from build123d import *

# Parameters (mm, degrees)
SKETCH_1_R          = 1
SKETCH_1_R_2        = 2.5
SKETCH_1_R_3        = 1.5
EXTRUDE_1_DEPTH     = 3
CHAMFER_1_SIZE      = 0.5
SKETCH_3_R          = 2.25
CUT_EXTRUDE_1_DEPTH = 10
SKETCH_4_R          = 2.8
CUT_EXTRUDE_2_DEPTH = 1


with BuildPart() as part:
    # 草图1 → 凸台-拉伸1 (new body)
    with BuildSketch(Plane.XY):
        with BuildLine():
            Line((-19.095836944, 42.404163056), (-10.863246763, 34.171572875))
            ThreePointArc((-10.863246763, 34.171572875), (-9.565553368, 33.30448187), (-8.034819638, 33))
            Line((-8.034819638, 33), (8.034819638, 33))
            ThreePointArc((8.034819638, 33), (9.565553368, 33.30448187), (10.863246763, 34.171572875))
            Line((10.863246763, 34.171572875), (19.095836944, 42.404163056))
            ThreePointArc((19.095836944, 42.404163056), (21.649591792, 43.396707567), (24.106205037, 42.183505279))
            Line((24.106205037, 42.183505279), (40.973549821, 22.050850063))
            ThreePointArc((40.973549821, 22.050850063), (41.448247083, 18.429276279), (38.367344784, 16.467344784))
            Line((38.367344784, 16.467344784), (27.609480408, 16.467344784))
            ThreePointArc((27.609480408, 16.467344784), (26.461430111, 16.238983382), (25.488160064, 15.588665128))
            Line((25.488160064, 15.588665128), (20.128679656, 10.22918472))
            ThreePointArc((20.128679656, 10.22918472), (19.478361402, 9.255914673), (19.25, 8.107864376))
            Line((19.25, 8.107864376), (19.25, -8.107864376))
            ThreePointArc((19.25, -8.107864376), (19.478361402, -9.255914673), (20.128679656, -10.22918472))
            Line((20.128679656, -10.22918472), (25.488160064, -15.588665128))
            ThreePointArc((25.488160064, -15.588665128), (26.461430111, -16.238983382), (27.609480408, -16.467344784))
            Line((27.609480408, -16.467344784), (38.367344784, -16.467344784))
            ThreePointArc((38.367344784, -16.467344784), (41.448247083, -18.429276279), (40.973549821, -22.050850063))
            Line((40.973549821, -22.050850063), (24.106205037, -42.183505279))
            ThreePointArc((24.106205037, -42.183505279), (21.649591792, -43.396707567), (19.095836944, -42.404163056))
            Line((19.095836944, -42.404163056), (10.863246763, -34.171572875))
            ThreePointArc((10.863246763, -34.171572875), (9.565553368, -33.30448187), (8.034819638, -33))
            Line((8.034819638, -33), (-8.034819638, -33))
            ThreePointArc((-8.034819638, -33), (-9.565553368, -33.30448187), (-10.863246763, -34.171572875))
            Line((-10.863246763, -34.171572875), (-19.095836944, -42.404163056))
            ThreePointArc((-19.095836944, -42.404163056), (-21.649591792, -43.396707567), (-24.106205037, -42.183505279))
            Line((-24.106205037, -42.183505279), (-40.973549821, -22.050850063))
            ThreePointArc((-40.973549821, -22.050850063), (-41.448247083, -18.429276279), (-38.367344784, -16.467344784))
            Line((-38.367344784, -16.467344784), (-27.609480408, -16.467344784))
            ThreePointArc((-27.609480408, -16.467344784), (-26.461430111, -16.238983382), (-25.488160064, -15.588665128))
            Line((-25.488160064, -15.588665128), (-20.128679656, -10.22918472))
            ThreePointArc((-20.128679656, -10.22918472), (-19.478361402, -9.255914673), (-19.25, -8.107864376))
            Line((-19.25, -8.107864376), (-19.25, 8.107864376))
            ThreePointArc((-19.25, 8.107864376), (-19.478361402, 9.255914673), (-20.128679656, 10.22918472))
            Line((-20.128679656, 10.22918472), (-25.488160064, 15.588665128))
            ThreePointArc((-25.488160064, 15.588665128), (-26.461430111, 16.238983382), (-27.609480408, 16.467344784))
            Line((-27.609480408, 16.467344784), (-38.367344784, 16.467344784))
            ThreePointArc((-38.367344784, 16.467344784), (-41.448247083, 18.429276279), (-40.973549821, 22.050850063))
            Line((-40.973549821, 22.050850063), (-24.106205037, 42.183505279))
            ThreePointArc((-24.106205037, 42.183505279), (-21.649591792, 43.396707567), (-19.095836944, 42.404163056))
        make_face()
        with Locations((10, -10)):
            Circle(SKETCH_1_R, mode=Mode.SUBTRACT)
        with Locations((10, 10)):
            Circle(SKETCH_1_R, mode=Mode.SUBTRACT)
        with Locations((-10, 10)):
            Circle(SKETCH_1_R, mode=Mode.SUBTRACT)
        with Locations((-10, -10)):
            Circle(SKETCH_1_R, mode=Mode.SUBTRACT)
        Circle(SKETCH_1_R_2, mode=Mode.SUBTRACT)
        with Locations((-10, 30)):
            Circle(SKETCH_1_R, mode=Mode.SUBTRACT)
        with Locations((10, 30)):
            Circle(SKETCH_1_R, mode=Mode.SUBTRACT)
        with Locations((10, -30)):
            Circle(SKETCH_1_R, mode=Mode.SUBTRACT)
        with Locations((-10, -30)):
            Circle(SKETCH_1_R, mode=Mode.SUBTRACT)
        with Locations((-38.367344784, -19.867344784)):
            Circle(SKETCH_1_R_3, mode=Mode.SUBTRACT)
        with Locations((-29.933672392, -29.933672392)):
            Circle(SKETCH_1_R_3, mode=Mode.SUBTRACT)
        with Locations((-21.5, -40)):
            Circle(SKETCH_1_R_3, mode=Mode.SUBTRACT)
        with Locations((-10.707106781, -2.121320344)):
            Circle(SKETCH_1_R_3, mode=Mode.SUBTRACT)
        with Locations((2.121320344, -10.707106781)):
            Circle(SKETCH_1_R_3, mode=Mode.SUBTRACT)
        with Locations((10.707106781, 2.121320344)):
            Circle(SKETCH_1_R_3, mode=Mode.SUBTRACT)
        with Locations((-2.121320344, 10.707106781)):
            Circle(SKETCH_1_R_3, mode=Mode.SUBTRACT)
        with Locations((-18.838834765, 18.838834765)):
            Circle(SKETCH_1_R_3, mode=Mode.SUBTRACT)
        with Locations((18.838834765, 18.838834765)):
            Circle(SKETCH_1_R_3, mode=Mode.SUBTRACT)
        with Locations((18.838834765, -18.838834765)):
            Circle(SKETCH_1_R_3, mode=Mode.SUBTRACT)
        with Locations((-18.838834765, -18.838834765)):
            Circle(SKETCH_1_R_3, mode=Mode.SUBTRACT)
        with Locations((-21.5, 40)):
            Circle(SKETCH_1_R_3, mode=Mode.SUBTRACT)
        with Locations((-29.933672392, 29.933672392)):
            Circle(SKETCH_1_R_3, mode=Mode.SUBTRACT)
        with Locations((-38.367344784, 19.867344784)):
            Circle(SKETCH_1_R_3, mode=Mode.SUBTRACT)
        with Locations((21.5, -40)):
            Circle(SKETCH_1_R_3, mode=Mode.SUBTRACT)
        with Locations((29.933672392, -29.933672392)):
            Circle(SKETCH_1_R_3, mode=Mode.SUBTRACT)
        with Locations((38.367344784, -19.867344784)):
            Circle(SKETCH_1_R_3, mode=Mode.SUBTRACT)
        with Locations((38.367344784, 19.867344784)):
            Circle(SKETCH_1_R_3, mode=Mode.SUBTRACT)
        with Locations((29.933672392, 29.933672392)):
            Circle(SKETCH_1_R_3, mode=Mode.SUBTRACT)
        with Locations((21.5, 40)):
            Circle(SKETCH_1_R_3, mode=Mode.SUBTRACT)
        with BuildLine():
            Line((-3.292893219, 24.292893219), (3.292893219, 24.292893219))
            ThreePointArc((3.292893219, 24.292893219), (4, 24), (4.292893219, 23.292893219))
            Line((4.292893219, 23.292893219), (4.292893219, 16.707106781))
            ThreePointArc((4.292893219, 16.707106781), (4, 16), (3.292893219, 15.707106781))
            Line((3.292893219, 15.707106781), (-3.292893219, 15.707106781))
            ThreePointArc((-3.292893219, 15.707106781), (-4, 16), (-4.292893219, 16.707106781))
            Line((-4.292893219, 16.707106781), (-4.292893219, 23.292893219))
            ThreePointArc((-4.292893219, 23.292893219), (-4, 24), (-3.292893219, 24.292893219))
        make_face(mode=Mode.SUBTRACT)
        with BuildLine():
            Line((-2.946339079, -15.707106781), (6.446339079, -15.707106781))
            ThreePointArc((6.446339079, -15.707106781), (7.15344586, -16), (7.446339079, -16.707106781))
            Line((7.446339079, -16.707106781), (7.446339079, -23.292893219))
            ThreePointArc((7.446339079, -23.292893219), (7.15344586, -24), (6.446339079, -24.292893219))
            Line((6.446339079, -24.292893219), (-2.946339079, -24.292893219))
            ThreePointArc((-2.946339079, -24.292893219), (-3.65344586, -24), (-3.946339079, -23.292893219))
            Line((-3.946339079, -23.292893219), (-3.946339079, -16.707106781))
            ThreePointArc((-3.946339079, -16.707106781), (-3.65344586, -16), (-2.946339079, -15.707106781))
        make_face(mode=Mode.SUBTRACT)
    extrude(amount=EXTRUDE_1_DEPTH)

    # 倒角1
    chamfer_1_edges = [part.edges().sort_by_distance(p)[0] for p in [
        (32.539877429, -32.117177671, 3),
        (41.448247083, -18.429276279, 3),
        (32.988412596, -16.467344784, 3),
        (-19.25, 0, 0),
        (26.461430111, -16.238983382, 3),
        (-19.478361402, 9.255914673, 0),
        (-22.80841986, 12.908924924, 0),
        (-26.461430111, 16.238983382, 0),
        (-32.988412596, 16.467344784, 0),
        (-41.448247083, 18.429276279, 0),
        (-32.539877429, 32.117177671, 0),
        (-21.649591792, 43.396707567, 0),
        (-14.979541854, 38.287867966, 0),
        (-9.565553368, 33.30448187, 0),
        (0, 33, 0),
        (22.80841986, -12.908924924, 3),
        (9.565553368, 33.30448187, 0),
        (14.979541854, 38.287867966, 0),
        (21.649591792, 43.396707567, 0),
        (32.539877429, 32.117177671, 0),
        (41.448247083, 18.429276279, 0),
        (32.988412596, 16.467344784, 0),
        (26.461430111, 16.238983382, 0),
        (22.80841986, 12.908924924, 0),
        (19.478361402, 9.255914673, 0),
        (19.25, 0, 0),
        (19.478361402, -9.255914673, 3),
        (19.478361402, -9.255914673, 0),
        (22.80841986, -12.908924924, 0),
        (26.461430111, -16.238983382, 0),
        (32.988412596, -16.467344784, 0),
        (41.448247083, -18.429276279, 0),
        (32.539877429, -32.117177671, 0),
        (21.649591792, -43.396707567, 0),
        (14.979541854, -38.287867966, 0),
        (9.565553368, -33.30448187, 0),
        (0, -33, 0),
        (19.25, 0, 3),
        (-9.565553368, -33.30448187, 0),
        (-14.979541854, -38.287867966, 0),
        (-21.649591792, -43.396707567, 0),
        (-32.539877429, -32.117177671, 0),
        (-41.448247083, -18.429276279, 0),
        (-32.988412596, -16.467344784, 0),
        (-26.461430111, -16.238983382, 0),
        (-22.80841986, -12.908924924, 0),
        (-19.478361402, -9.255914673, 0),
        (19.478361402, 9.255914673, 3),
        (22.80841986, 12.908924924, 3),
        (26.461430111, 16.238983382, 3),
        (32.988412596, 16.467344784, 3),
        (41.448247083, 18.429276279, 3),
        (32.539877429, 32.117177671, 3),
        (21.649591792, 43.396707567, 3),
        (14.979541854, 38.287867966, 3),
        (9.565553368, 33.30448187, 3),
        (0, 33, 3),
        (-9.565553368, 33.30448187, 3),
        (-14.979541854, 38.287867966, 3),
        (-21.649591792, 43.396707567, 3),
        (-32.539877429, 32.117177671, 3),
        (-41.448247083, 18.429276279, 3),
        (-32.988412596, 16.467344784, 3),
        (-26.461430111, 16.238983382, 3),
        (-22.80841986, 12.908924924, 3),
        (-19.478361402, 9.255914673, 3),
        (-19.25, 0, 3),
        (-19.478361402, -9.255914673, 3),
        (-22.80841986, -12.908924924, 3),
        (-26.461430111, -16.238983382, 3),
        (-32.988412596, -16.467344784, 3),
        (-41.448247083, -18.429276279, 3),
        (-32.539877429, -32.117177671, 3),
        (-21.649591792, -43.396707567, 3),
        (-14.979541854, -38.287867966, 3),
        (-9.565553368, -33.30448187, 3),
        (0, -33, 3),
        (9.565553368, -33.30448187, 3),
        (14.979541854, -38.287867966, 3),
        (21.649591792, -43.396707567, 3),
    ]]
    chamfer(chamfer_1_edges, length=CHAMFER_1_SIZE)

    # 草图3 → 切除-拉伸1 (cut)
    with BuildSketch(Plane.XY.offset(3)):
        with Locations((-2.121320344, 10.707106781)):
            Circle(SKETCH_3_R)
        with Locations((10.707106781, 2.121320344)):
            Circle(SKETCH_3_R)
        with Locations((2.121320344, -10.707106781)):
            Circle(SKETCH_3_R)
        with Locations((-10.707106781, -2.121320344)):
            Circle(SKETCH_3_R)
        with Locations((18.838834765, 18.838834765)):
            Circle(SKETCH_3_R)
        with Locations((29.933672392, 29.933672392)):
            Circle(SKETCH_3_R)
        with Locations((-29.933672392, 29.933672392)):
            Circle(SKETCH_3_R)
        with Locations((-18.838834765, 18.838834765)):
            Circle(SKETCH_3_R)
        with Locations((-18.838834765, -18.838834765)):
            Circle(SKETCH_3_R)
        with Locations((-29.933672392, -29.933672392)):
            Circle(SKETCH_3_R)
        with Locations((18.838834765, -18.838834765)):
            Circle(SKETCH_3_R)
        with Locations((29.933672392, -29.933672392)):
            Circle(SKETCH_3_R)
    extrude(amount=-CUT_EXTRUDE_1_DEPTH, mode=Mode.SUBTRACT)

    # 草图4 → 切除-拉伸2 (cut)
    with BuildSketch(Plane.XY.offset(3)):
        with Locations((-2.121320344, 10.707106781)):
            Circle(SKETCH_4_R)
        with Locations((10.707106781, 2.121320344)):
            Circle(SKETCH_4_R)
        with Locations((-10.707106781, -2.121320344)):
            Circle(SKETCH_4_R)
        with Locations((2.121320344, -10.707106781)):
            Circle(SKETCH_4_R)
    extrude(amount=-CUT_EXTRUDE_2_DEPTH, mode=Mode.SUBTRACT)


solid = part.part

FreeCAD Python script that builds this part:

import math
import FreeCAD as App
import Part
import Sketcher
from FreeCAD import Vector
Q = App.Units.Quantity


def edges_at(feature, points):
    """Names of the edges that pass closest to the given points."""
    edges = feature.Shape.Edges
    near = lambda p: min(range(len(edges)), key=lambda i: edges[i].distToShape(Part.Vertex(*p))[0])
    return sorted({f"Edge{near(p) + 1}" for p in points})

doc = App.newDocument("Part")
params = doc.addObject("Spreadsheet::Sheet", "Params")
for row, (alias, value) in enumerate([
    ("sketch1_diameter", "3 mm"),
    ("sketch1_diameter2", "2 mm"),
    ("sketch1_diameter3", "5 mm"),
    ("sketch1_radius", "3 mm"),
    ("sketch1_radius2", "4 mm"),
    ("pad1_length", "3 mm"),
    ("chamfer_size", "0.5 mm"),
    ("sketch2_diameter", "4.5 mm"),
    ("pocket1_length", "10 mm"),
    ("sketch3_diameter", "5.6 mm"),
    ("pocket2_length", "1 mm"),
], start=1):
    params.set(f"A{row}", alias)
    params.set(f"B{row}", "=" + value)
    params.setAlias(f"B{row}", alias)

body = doc.addObject("PartDesign::Body", "Body")

# Sketch on XY plane
sketch1 = body.newObject("Sketcher::SketchObject", "Sketch")
sketch1.AttachmentSupport = (doc.getObject("XY_Plane"), [""])
sketch1.MapMode = "FlatFace"
sketch1.addGeometry(Part.LineSegment(Vector(-10.9, 34.2, 0), Vector(-19.1, 42.4, 0)), False)
sketch1.addGeometry(Part.ArcOfCircle(Part.Circle(Vector(-21.5, 40, 0), Vector(0, 0, 1), 3.4), math.radians(45), math.radians(140)), False)
sketch1.addGeometry(Part.LineSegment(Vector(-24.1, 42.2, 0), Vector(-41, 22.1, 0)), False)
sketch1.addGeometry(Part.ArcOfCircle(Part.Circle(Vector(-38.4, 19.9, 0), Vector(0, 0, 1), 3.4), math.radians(140), math.radians(270)), False)
sketch1.addGeometry(Part.LineSegment(Vector(-38.4, 16.5, 0), Vector(-27.6, 16.5, 0)), False)
sketch1.addGeometry(Part.ArcOfCircle(Part.Circle(Vector(-27.6, 13.5, 0), Vector(0, 0, 1), 3), math.radians(45), math.radians(90)), False)
sketch1.addGeometry(Part.LineSegment(Vector(-25.5, 15.6, 0), Vector(-20.1, 10.2, 0)), False)
sketch1.addGeometry(Part.ArcOfCircle(Part.Circle(Vector(-22.2, 8.1, 0), Vector(0, 0, 1), 3), math.radians(0), math.radians(45)), False)
sketch1.addGeometry(Part.LineSegment(Vector(-19.2, 8.1, 0), Vector(-19.2, -8.1, 0)), False)
sketch1.addGeometry(Part.ArcOfCircle(Part.Circle(Vector(-22.2, -8.1, 0), Vector(0, 0, 1), 3), math.radians(-45), math.radians(0)), False)
sketch1.addGeometry(Part.LineSegment(Vector(-20.1, -10.2, 0), Vector(-25.5, -15.6, 0)), False)
sketch1.addGeometry(Part.ArcOfCircle(Part.Circle(Vector(-27.6, -13.5, 0), Vector(0, 0, 1), 3), math.radians(-90), math.radians(-45)), False)
sketch1.addGeometry(Part.LineSegment(Vector(-27.6, -16.5, 0), Vector(-38.4, -16.5, 0)), False)
sketch1.addGeometry(Part.ArcOfCircle(Part.Circle(Vector(-38.4, -19.9, 0), Vector(0, 0, 1), 3.4), math.radians(90), math.radians(220)), False)
sketch1.addGeometry(Part.LineSegment(Vector(-41, -22.1, 0), Vector(-24.1, -42.2, 0)), False)
sketch1.addGeometry(Part.ArcOfCircle(Part.Circle(Vector(-21.5, -40, 0), Vector(0, 0, 1), 3.4), math.radians(-140), math.radians(-45)), False)
sketch1.addGeometry(Part.LineSegment(Vector(-19.1, -42.4, 0), Vector(-10.9, -34.2, 0)), False)
sketch1.addGeometry(Part.ArcOfCircle(Part.Circle(Vector(-8, -37, 0), Vector(0, 0, 1), 4), math.radians(90), math.radians(135)), False)
sketch1.addGeometry(Part.LineSegment(Vector(-8, -33, 0), Vector(8, -33, 0)), False)
sketch1.addGeometry(Part.ArcOfCircle(Part.Circle(Vector(8, -37, 0), Vector(0, 0, 1), 4), math.radians(45), math.radians(90)), False)
sketch1.addGeometry(Part.LineSegment(Vector(10.9, -34.2, 0), Vector(19.1, -42.4, 0)), False)
sketch1.addGeometry(Part.ArcOfCircle(Part.Circle(Vector(21.5, -40, 0), Vector(0, 0, 1), 3.4), math.radians(-135), math.radians(-40)), False)
sketch1.addGeometry(Part.LineSegment(Vector(24.1, -42.2, 0), Vector(41, -22.1, 0)), False)
sketch1.addGeometry(Part.ArcOfCircle(Part.Circle(Vector(38.4, -19.9, 0), Vector(0, 0, 1), 3.4), math.radians(-40), math.radians(90)), False)
sketch1.addGeometry(Part.LineSegment(Vector(38.4, -16.5, 0), Vector(27.6, -16.5, 0)), False)
sketch1.addGeometry(Part.ArcOfCircle(Part.Circle(Vector(27.6, -13.5, 0), Vector(0, 0, 1), 3), math.radians(-135), math.radians(-90)), False)
sketch1.addGeometry(Part.LineSegment(Vector(25.5, -15.6, 0), Vector(20.1, -10.2, 0)), False)
sketch1.addGeometry(Part.ArcOfCircle(Part.Circle(Vector(22.2, -8.1, 0), Vector(0, 0, 1), 3), math.radians(180), math.radians(225)), False)
sketch1.addGeometry(Part.LineSegment(Vector(19.2, -8.1, 0), Vector(19.2, 8.1, 0)), False)
sketch1.addGeometry(Part.ArcOfCircle(Part.Circle(Vector(22.2, 8.1, 0), Vector(0, 0, 1), 3), math.radians(135), math.radians(180)), False)
sketch1.addGeometry(Part.LineSegment(Vector(20.1, 10.2, 0), Vector(25.5, 15.6, 0)), False)
sketch1.addGeometry(Part.ArcOfCircle(Part.Circle(Vector(27.6, 13.5, 0), Vector(0, 0, 1), 3), math.radians(90), math.radians(135)), False)
sketch1.addGeometry(Part.LineSegment(Vector(27.6, 16.5, 0), Vector(38.4, 16.5, 0)), False)
sketch1.addGeometry(Part.ArcOfCircle(Part.Circle(Vector(38.4, 19.9, 0), Vector(0, 0, 1), 3.4), math.radians(-90), math.radians(40)), False)
sketch1.addGeometry(Part.LineSegment(Vector(41, 22.1, 0), Vector(24.1, 42.2, 0)), False)
sketch1.addGeometry(Part.ArcOfCircle(Part.Circle(Vector(21.5, 40, 0), Vector(0, 0, 1), 3.4), math.radians(40), math.radians(135)), False)
sketch1.addGeometry(Part.LineSegment(Vector(19.1, 42.4, 0), Vector(10.9, 34.2, 0)), False)
sketch1.addGeometry(Part.ArcOfCircle(Part.Circle(Vector(8, 37, 0), Vector(0, 0, 1), 4), math.radians(-90), math.radians(-45)), False)
sketch1.addGeometry(Part.LineSegment(Vector(8, 33, 0), Vector(-8, 33, 0)), False)
sketch1.addGeometry(Part.ArcOfCircle(Part.Circle(Vector(-8, 37, 0), Vector(0, 0, 1), 4), math.radians(-135), math.radians(-90)), False)
sketch1.addGeometry(Part.Circle(Vector(21.5, -40, 0), Vector(0, 0, 1), 1.5), False)
sketch1.addGeometry(Part.Circle(Vector(29.9, -29.9, 0), Vector(0, 0, 1), 1.5), False)
sketch1.addGeometry(Part.Circle(Vector(10, -30, 0), Vector(0, 0, 1), 1), False)
sketch1.addGeometry(Part.Circle(Vector(38.4, -19.9, 0), Vector(0, 0, 1), 1.5), False)
sketch1.addGeometry(Part.Circle(Vector(18.8, -18.8, 0), Vector(0, 0, 1), 1.5), False)
sketch1.addGeometry(Part.LineSegment(Vector(-2.9, -15.7, 0), Vector(6.4, -15.7, 0)), False)
sketch1.addGeometry(Part.ArcOfCircle(Part.Circle(Vector(6.4, -16.7, 0), Vector(0, 0, 1), 1), math.radians(0), math.radians(90)), False)
sketch1.addGeometry(Part.LineSegment(Vector(7.4, -16.7, 0), Vector(7.4, -23.3, 0)), False)
sketch1.addGeometry(Part.ArcOfCircle(Part.Circle(Vector(6.4, -23.3, 0), Vector(0, 0, 1), 1), math.radians(-90), math.radians(0)), False)
sketch1.addGeometry(Part.LineSegment(Vector(6.4, -24.3, 0), Vector(-2.9, -24.3, 0)), False)
sketch1.addGeometry(Part.ArcOfCircle(Part.Circle(Vector(-2.9, -23.3, 0), Vector(0, 0, 1), 1), math.radians(-180), math.radians(-90)), False)
sketch1.addGeometry(Part.LineSegment(Vector(-3.9, -23.3, 0), Vector(-3.9, -16.7, 0)), False)
sketch1.addGeometry(Part.ArcOfCircle(Part.Circle(Vector(-2.9, -16.7, 0), Vector(0, 0, 1), 1), math.radians(90), math.radians(180)), False)
sketch1.addGeometry(Part.Circle(Vector(2.1, -10.7, 0), Vector(0, 0, 1), 1.5), False)
sketch1.addGeometry(Part.Circle(Vector(10, -10, 0), Vector(0, 0, 1), 1), False)
sketch1.addGeometry(Part.Circle(Vector(-10, -30, 0), Vector(0, 0, 1), 1), False)
sketch1.addGeometry(Part.Circle(Vector(-21.5, -40, 0), Vector(0, 0, 1), 1.5), False)
sketch1.addGeometry(Part.Circle(Vector(-29.9, -29.9, 0), Vector(0, 0, 1), 1.5), False)
sketch1.addGeometry(Part.Circle(Vector(-18.8, -18.8, 0), Vector(0, 0, 1), 1.5), False)
sketch1.addGeometry(Part.Circle(Vector(-10, -10, 0), Vector(0, 0, 1), 1), False)
sketch1.addGeometry(Part.Circle(Vector(-10.7, -2.1, 0), Vector(0, 0, 1), 1.5), False)
sketch1.addGeometry(Part.Circle(Vector(-38.4, -19.9, 0), Vector(0, 0, 1), 1.5), False)
sketch1.addGeometry(Part.Circle(Vector(38.4, 19.9, 0), Vector(0, 0, 1), 1.5), False)
sketch1.addGeometry(Part.Circle(Vector(10.7, 2.1, 0), Vector(0, 0, 1), 1.5), False)
sketch1.addGeometry(Part.Circle(Vector(10, 10, 0), Vector(0, 0, 1), 1), False)
sketch1.addGeometry(Part.Circle(Vector(18.8, 18.8, 0), Vector(0, 0, 1), 1.5), False)
sketch1.addGeometry(Part.Circle(Vector(29.9, 29.9, 0), Vector(0, 0, 1), 1.5), False)
sketch1.addGeometry(Part.Circle(Vector(21.5, 40, 0), Vector(0, 0, 1), 1.5), False)
sketch1.addGeometry(Part.Circle(Vector(10, 30, 0), Vector(0, 0, 1), 1), False)
sketch1.addGeometry(Part.Circle(Vector(0, 0, 0), Vector(0, 0, 1), 2.5), False)
sketch1.addGeometry(Part.Circle(Vector(-10, 10, 0), Vector(0, 0, 1), 1), False)
sketch1.addGeometry(Part.Circle(Vector(-2.1, 10.7, 0), Vector(0, 0, 1), 1.5), False)
sketch1.addGeometry(Part.LineSegment(Vector(-3.3, 24.3, 0), Vector(3.3, 24.3, 0)), False)
sketch1.addGeometry(Part.ArcOfCircle(Part.Circle(Vector(3.3, 23.3, 0), Vector(0, 0, 1), 1), math.radians(0), math.radians(90)), False)
sketch1.addGeometry(Part.LineSegment(Vector(4.3, 23.3, 0), Vector(4.3, 16.7, 0)), False)
sketch1.addGeometry(Part.ArcOfCircle(Part.Circle(Vector(3.3, 16.7, 0), Vector(0, 0, 1), 1), math.radians(-90), math.radians(0)), False)
sketch1.addGeometry(Part.LineSegment(Vector(3.3, 15.7, 0), Vector(-3.3, 15.7, 0)), False)
sketch1.addGeometry(Part.ArcOfCircle(Part.Circle(Vector(-3.3, 16.7, 0), Vector(0, 0, 1), 1), math.radians(-180), math.radians(-90)), False)
sketch1.addGeometry(Part.LineSegment(Vector(-4.3, 16.7, 0), Vector(-4.3, 23.3, 0)), False)
sketch1.addGeometry(Part.ArcOfCircle(Part.Circle(Vector(-3.3, 23.3, 0), Vector(0, 0, 1), 1), math.radians(90), math.radians(180)), False)
sketch1.addGeometry(Part.Circle(Vector(-18.8, 18.8, 0), Vector(0, 0, 1), 1.5), False)
sketch1.addGeometry(Part.Circle(Vector(-38.4, 19.9, 0), Vector(0, 0, 1), 1.5), False)
sketch1.addGeometry(Part.Circle(Vector(-10, 30, 0), Vector(0, 0, 1), 1), False)
sketch1.addGeometry(Part.Circle(Vector(-29.9, 29.9, 0), Vector(0, 0, 1), 1.5), False)
sketch1.addGeometry(Part.Circle(Vector(-21.5, 40, 0), Vector(0, 0, 1), 1.5), False)
sketch1.addConstraint(Sketcher.Constraint("Tangent", 0, 2, 1, 1))
sketch1.addConstraint(Sketcher.Constraint("Tangent", 1, 2, 2, 1))
sketch1.addConstraint(Sketcher.Constraint("Tangent", 2, 2, 3, 1))
sketch1.addConstraint(Sketcher.Constraint("Tangent", 3, 2, 4, 1))
sketch1.addConstraint(Sketcher.Constraint("Tangent", 4, 2, 5, 2))
sketch1.addConstraint(Sketcher.Constraint("Tangent", 5, 1, 6, 1))
sketch1.addConstraint(Sketcher.Constraint("Tangent", 6, 2, 7, 2))
sketch1.addConstraint(Sketcher.Constraint("Tangent", 7, 1, 8, 1))
sketch1.addConstraint(Sketcher.Constraint("Tangent", 8, 2, 9, 2))
sketch1.addConstraint(Sketcher.Constraint("Tangent", 9, 1, 10, 1))
sketch1.addConstraint(Sketcher.Constraint("Tangent", 10, 2, 11, 2))
sketch1.addConstraint(Sketcher.Constraint("Tangent", 11, 1, 12, 1))
sketch1.addConstraint(Sketcher.Constraint("Tangent", 12, 2, 13, 1))
sketch1.addConstraint(Sketcher.Constraint("Tangent", 13, 2, 14, 1))
sketch1.addConstraint(Sketcher.Constraint("Tangent", 14, 2, 15, 1))
sketch1.addConstraint(Sketcher.Constraint("Tangent", 15, 2, 16, 1))
sketch1.addConstraint(Sketcher.Constraint("Tangent", 16, 2, 17, 2))
sketch1.addConstraint(Sketcher.Constraint("Tangent", 17, 1, 18, 1))
sketch1.addConstraint(Sketcher.Constraint("Tangent", 18, 2, 19, 2))
sketch1.addConstraint(Sketcher.Constraint("Tangent", 19, 1, 20, 1))
sketch1.addConstraint(Sketcher.Constraint("Tangent", 20, 2, 21, 1))
sketch1.addConstraint(Sketcher.Constraint("Tangent", 21, 2, 22, 1))
sketch1.addConstraint(Sketcher.Constraint("Tangent", 22, 2, 23, 1))
sketch1.addConstraint(Sketcher.Constraint("Tangent", 23, 2, 24, 1))
sketch1.addConstraint(Sketcher.Constraint("Tangent", 24, 2, 25, 2))
sketch1.addConstraint(Sketcher.Constraint("Tangent", 25, 1, 26, 1))
sketch1.addConstraint(Sketcher.Constraint("Tangent", 26, 2, 27, 2))
sketch1.addConstraint(Sketcher.Constraint("Tangent", 27, 1, 28, 1))
sketch1.addConstraint(Sketcher.Constraint("Tangent", 28, 2, 29, 2))
sketch1.addConstraint(Sketcher.Constraint("Tangent", 29, 1, 30, 1))
sketch1.addConstraint(Sketcher.Constraint("Tangent", 30, 2, 31, 2))
sketch1.addConstraint(Sketcher.Constraint("Tangent", 31, 1, 32, 1))
sketch1.addConstraint(Sketcher.Constraint("Tangent", 32, 2, 33, 1))
sketch1.addConstraint(Sketcher.Constraint("Tangent", 33, 2, 34, 1))
sketch1.addConstraint(Sketcher.Constraint("Tangent", 34, 2, 35, 1))
sketch1.addConstraint(Sketcher.Constraint("Tangent", 35, 2, 36, 1))
sketch1.addConstraint(Sketcher.Constraint("Tangent", 36, 2, 37, 2))
sketch1.addConstraint(Sketcher.Constraint("Tangent", 37, 1, 38, 1))
sketch1.addConstraint(Sketcher.Constraint("Tangent", 38, 2, 39, 2))
sketch1.addConstraint(Sketcher.Constraint("Tangent", 39, 1, 0, 1))
sketch1.addConstraint(Sketcher.Constraint("Tangent", 45, 2, 46, 2))
sketch1.addConstraint(Sketcher.Constraint("Tangent", 46, 1, 47, 1))
sketch1.addConstraint(Sketcher.Constraint("Tangent", 47, 2, 48, 2))
sketch1.addConstraint(Sketcher.Constraint("Tangent", 48, 1, 49, 1))
sketch1.addConstraint(Sketcher.Constraint("Tangent", 49, 2, 50, 2))
sketch1.addConstraint(Sketcher.Constraint("Tangent", 50, 1, 51, 1))
sketch1.addConstraint(Sketcher.Constraint("Tangent", 51, 2, 52, 2))
sketch1.addConstraint(Sketcher.Constraint("Tangent", 52, 1, 45, 1))
sketch1.addConstraint(Sketcher.Constraint("Tangent", 72, 2, 73, 2))
sketch1.addConstraint(Sketcher.Constraint("Tangent", 73, 1, 74, 1))
sketch1.addConstraint(Sketcher.Constraint("Tangent", 74, 2, 75, 2))
sketch1.addConstraint(Sketcher.Constraint("Tangent", 75, 1, 76, 1))
sketch1.addConstraint(Sketcher.Constraint("Tangent", 76, 2, 77, 2))
sketch1.addConstraint(Sketcher.Constraint("Tangent", 77, 1, 78, 1))
sketch1.addConstraint(Sketcher.Constraint("Tangent", 78, 2, 79, 2))
sketch1.addConstraint(Sketcher.Constraint("Tangent", 79, 1, 72, 1))
sketch1.addConstraint(Sketcher.Constraint("Horizontal", 4))
sketch1.addConstraint(Sketcher.Constraint("Vertical", 8))
sketch1.addConstraint(Sketcher.Constraint("Horizontal", 12))
sketch1.addConstraint(Sketcher.Constraint("Horizontal", 18))
sketch1.addConstraint(Sketcher.Constraint("Horizontal", 24))
sketch1.addConstraint(Sketcher.Constraint("Vertical", 28))
sketch1.addConstraint(Sketcher.Constraint("Horizontal", 32))
sketch1.addConstraint(Sketcher.Constraint("Horizontal", 38))
sketch1.addConstraint(Sketcher.Constraint("Horizontal", 45))
sketch1.addConstraint(Sketcher.Constraint("Vertical", 47))
sketch1.addConstraint(Sketcher.Constraint("Horizontal", 49))
sketch1.addConstraint(Sketcher.Constraint("Vertical", 51))
sketch1.addConstraint(Sketcher.Constraint("Horizontal", 72))
sketch1.addConstraint(Sketcher.Constraint("Vertical", 74))
sketch1.addConstraint(Sketcher.Constraint("Horizontal", 76))
sketch1.addConstraint(Sketcher.Constraint("Vertical", 78))
sketch1.addConstraint(Sketcher.Constraint("Coincident", 69, 3, -1, 1))
sketch1.addConstraint(Sketcher.Constraint("Coincident", 40, 3, 21, 3))
sketch1.addConstraint(Sketcher.Constraint("Coincident", 43, 3, 23, 3))
sketch1.addConstraint(Sketcher.Constraint("Coincident", 56, 3, 15, 3))
sketch1.addConstraint(Sketcher.Constraint("Coincident", 61, 3, 13, 3))
sketch1.addConstraint(Sketcher.Constraint("Coincident", 62, 3, 33, 3))
sketch1.addConstraint(Sketcher.Constraint("Coincident", 67, 3, 35, 3))
sketch1.addConstraint(Sketcher.Constraint("Coincident", 81, 3, 3, 3))
sketch1.addConstraint(Sketcher.Constraint("Coincident", 84, 3, 1, 3))
sketch1.addConstraint(Sketcher.Constraint("Equal", 1, 3))
sketch1.addConstraint(Sketcher.Constraint("Equal", 5, 7))
sketch1.addConstraint(Sketcher.Constraint("Equal", 7, 9))
sketch1.addConstraint(Sketcher.Constraint("Equal", 9, 11))
sketch1.addConstraint(Sketcher.Constraint("Equal", 3, 13))
sketch1.addConstraint(Sketcher.Constraint("Equal", 13, 15))
sketch1.addConstraint(Sketcher.Constraint("Equal", 17, 19))
sketch1.addConstraint(Sketcher.Constraint("Equal", 15, 21))
sketch1.addConstraint(Sketcher.Constraint("Equal", 21, 23))
sketch1.addConstraint(Sketcher.Constraint("Equal", 11, 25))
sketch1.addConstraint(Sketcher.Constraint("Equal", 25, 27))
sketch1.addConstraint(Sketcher.Constraint("Equal", 27, 29))
sketch1.addConstraint(Sketcher.Constraint("Equal", 29, 31))
sketch1.addConstraint(Sketcher.Constraint("Equal", 23, 33))
sketch1.addConstraint(Sketcher.Constraint("Equal", 33, 35))
sketch1.addConstraint(Sketcher.Constraint("Equal", 19, 37))
sketch1.addConstraint(Sketcher.Constraint("Equal", 37, 39))
sketch1.addConstraint(Sketcher.Constraint("Equal", 40, 41))
sketch1.addConstraint(Sketcher.Constraint("Equal", 41, 43))
sketch1.addConstraint(Sketcher.Constraint("Equal", 43, 44))
sketch1.addConstraint(Sketcher.Constraint("Equal", 42, 46))
sketch1.addConstraint(Sketcher.Constraint("Equal", 46, 48))
sketch1.addConstraint(Sketcher.Constraint("Equal", 48, 50))
sketch1.addConstraint(Sketcher.Constraint("Equal", 50, 52))
sketch1.addConstraint(Sketcher.Constraint("Equal", 44, 53))
sketch1.addConstraint(Sketcher.Constraint("Equal", 52, 54))
sketch1.addConstraint(Sketcher.Constraint("Equal", 54, 55))
sketch1.addConstraint(Sketcher.Constraint("Equal", 53, 56))
sketch1.addConstraint(Sketcher.Constraint("Equal", 56, 57))
sketch1.addConstraint(Sketcher.Constraint("Equal", 57, 58))
sketch1.addConstraint(Sketcher.Constraint("Equal", 55, 59))
sketch1.addConstraint(Sketcher.Constraint("Equal", 58, 60))
sketch1.addConstraint(Sketcher.Constraint("Equal", 60, 61))
sketch1.addConstraint(Sketcher.Constraint("Equal", 61, 62))
sketch1.addConstraint(Sketcher.Constraint("Equal", 62, 63))
sketch1.addConstraint(Sketcher.Constraint("Equal", 59, 64))
sketch1.addConstraint(Sketcher.Constraint("Equal", 63, 65))
sketch1.addConstraint(Sketcher.Constraint("Equal", 65, 66))
sketch1.addConstraint(Sketcher.Constraint("Equal", 66, 67))
sketch1.addConstraint(Sketcher.Constraint("Equal", 64, 68))
sketch1.addConstraint(Sketcher.Constraint("Equal", 68, 70))
sketch1.addConstraint(Sketcher.Constraint("Equal", 67, 71))
sketch1.addConstraint(Sketcher.Constraint("Equal", 70, 73))
sketch1.addConstraint(Sketcher.Constraint("Equal", 73, 75))
sketch1.addConstraint(Sketcher.Constraint("Equal", 75, 77))
sketch1.addConstraint(Sketcher.Constraint("Equal", 77, 79))
sketch1.addConstraint(Sketcher.Constraint("Equal", 71, 80))
sketch1.addConstraint(Sketcher.Constraint("Equal", 80, 81))
sketch1.addConstraint(Sketcher.Constraint("Equal", 79, 82))
sketch1.addConstraint(Sketcher.Constraint("Equal", 81, 83))
sketch1.addConstraint(Sketcher.Constraint("Equal", 83, 84))
sketch1.addConstraint(Sketcher.Constraint("Symmetric", 1, 3, 21, 3, -1, 1))
sketch1.addConstraint(Sketcher.Constraint("Symmetric", 3, 3, 23, 3, -1, 1))
sketch1.addConstraint(Sketcher.Constraint("Symmetric", 7, 3, 27, 3, -1, 1))
sketch1.addConstraint(Sketcher.Constraint("Symmetric", 11, 3, 31, 3, -1, 1))
sketch1.addConstraint(Sketcher.Constraint("Symmetric", 15, 3, 35, 3, -1, 1))
sketch1.addConstraint(Sketcher.Constraint("Symmetric", 17, 3, 37, 3, -1, 1))
sketch1.addConstraint(Sketcher.Constraint("Symmetric", 60, 3, 63, 3, -1, 1))
sketch1.addConstraint(Sketcher.Constraint("Symmetric", 59, 3, 64, 3, -1, 1))
sketch1.addConstraint(Sketcher.Constraint("Symmetric", 58, 3, 65, 3, -1, 1))
sketch1.addConstraint(Sketcher.Constraint("Symmetric", 57, 3, 66, 3, -1, 1))
sketch1.addConstraint(Sketcher.Constraint("Symmetric", 55, 3, 68, 3, -1, 1))
sketch1.addConstraint(Sketcher.Constraint("Symmetric", 54, 3, 70, 3, -1, 1))
sketch1.addConstraint(Sketcher.Constraint("Symmetric", 53, 3, 71, 3, -1, 1))
sketch1.addConstraint(Sketcher.Constraint("Symmetric", 44, 3, 80, 3, -1, 1))
sketch1.addConstraint(Sketcher.Constraint("Symmetric", 42, 3, 82, 3, -1, 1))
sketch1.addConstraint(Sketcher.Constraint("Symmetric", 41, 3, 83, 3, -1, 1))
sketch1.addConstraint(Sketcher.Constraint("Symmetric", 15, 3, 21, 3, -2))
sketch1.addConstraint(Sketcher.Constraint("Symmetric", 13, 3, 23, 3, -2))
sketch1.addConstraint(Sketcher.Constraint("Symmetric", 42, 3, 55, 3, -2))
sketch1.addConstraint(Sketcher.Constraint("Symmetric", 41, 3, 57, 3, -2))
sketch1.addConstraint(Sketcher.Constraint("Symmetric", 44, 3, 58, 3, -2))
sketch1.addConstraint(Sketcher.Constraint("Symmetric", 54, 3, 59, 3, -2))
sketch1.addConstraint(Sketcher.Constraint("Symmetric", 10, 2, 25, 1, -2))
sketch1.addConstraint(Sketcher.Constraint("Symmetric", 6, 2, 29, 1, -2))
sketch1.addConstraint(Sketcher.Constraint("Parallel", 0, 6))
sketch1.addConstraint(Sketcher.Constraint("Perpendicular", 6, 10))
sketch1.addConstraint(Sketcher.Constraint("Parallel", 10, 16))
sketch1.addConstraint(Sketcher.Constraint("Perpendicular", 16, 20))
sketch1.addConstraint(Sketcher.Constraint("Parallel", 14, 34))
sketch1.addConstraint(Sketcher.Constraint("Vertical", 42, 3, 54, 3))
sketch1.addConstraint(Sketcher.Constraint("Equal", 76, 47))
sketch1.addConstraint(Sketcher.Constraint("Equal", 51, 74))
sketch1.addConstraint(Sketcher.Constraint("Diameter", 40, Q("3 mm")))
sketch1.addConstraint(Sketcher.Constraint("Diameter", 42, Q("2 mm")))
sketch1.addConstraint(Sketcher.Constraint("Diameter", 69, Q("5 mm")))
sketch1.addConstraint(Sketcher.Constraint("Radius", 5, Q("3 mm")))
sketch1.addConstraint(Sketcher.Constraint("Radius", 17, Q("4 mm")))
sketch1.addConstraint(Sketcher.Constraint("Radius", 1, Q("3.4 mm")))
sketch1.addConstraint(Sketcher.Constraint("DistanceY", -1, 1, 1, 3, Q("40 mm")))
sketch1.addConstraint(Sketcher.Constraint("DistanceY", 17, 3, -1, 1, Q("37 mm")))
sketch1.addConstraint(Sketcher.Constraint("DistanceX", -1, 1, 42, 3, Q("10 mm")))
sketch1.addConstraint(Sketcher.Constraint("DistanceY", 42, 3, -1, 1, Q("30 mm")))
sketch1.addConstraint(Sketcher.Constraint("DistanceY", 54, 3, -1, 1, Q("10 mm")))
sketch1.addConstraint(Sketcher.Constraint("DistanceX", 1, 3, -1, 1, Q("21.5 mm")))
sketch1.addConstraint(Sketcher.Constraint("DistanceX", 7, 3, -1, 1, Q("22.25 mm")))
sketch1.addConstraint(Sketcher.Constraint("DistanceX", 45, 1, 45, 2, Q("9.392678 mm")))
sketch1.addConstraint(Sketcher.Constraint("DistanceY", 8, 2, 8, 1, Q("16.215729 mm")))
sketch1.addConstraint(Sketcher.Constraint("Distance", 6, Q("7.57945 mm")))
sketch1.addConstraint(Sketcher.Constraint("DistanceX", 4, 1, 4, 2, Q("10.757864 mm")))
sketch1.addConstraint(Sketcher.Constraint("DistanceX", 72, 1, 72, 2, Q("6.585786 mm")))
sketch1.addConstraint(Sketcher.Constraint("DistanceX", -1, 1, 46, 3, Q("6.446339 mm")))
sketch1.addConstraint(Sketcher.Constraint("DistanceX", -1, 1, 53, 3, Q("2.12132 mm")))
sketch1.addConstraint(Sketcher.Constraint("DistanceY", 60, 3, -1, 1, Q("2.12132 mm")))
sketch1.addConstraint(Sketcher.Constraint("DistanceX", -1, 1, 41, 3, Q("29.933672 mm")))
sketch1.addConstraint(Sketcher.Constraint("DistanceY", 41, 3, -1, 1, Q("29.933672 mm")))
sketch1.addConstraint(Sketcher.Constraint("DistanceX", -1, 1, 44, 3, Q("18.838835 mm")))
sketch1.addConstraint(Sketcher.Constraint("DistanceY", 44, 3, -1, 1, Q("18.838835 mm")))
sketch1.addConstraint(Sketcher.Constraint("DistanceY", 46, 3, -1, 1, Q("16.707107 mm")))
sketch1.addConstraint(Sketcher.Constraint("DistanceY", 53, 3, -1, 1, Q("10.707107 mm")))
sketch1.addConstraint(Sketcher.Constraint("DistanceX", 60, 3, -1, 1, Q("10.707107 mm")))
sketch1.addConstraint(Sketcher.Constraint("DistanceX", -1, 1, 73, 3, Q("3.292893 mm")))
sketch1.addConstraint(Sketcher.Constraint("DistanceY", -1, 1, 73, 3, Q("23.292893 mm")))
sketch1.setExpression("Constraints[164]", "Params.sketch1_diameter")
sketch1.setExpression("Constraints[165]", "Params.sketch1_diameter2")
sketch1.setExpression("Constraints[166]", "Params.sketch1_diameter3")
sketch1.setExpression("Constraints[167]", "Params.sketch1_radius")
sketch1.setExpression("Constraints[168]", "Params.sketch1_radius2")
pad1 = body.newObject("PartDesign::Pad", "Pad")
pad1.Profile = sketch1
pad1.setExpression("Length", "Params.pad1_length")
doc.recompute()

chamfer = body.newObject("PartDesign::Chamfer", "Chamfer")
chamfer.Base = (pad1, edges_at(pad1, [
    (32.54, -32.117, 3),
    (41.448, -18.429, 3),
    (32.988, -16.467, 3),
    (-19.25, 0, 0),
    (26.461, -16.239, 3),
    (-19.478, 9.256, 0),
    (-22.808, 12.909, 0),
    (-26.461, 16.239, 0),
    (-32.988, 16.467, 0),
    (-41.448, 18.429, 0),
    (-32.54, 32.117, 0),
    (-21.65, 43.397, 0),
    (-14.98, 38.288, 0),
    (-9.566, 33.304, 0),
    (0, 33, 0),
    (22.808, -12.909, 3),
    (9.566, 33.304, 0),
    (14.98, 38.288, 0),
    (21.65, 43.397, 0),
    (32.54, 32.117, 0),
    (41.448, 18.429, 0),
    (32.988, 16.467, 0),
    (26.461, 16.239, 0),
    (22.808, 12.909, 0),
    (19.478, 9.256, 0),
    (19.25, 0, 0),
    (19.478, -9.256, 3),
    (19.478, -9.256, 0),
    (22.808, -12.909, 0),
    (26.461, -16.239, 0),
    (32.988, -16.467, 0),
    (41.448, -18.429, 0),
    (32.54, -32.117, 0),
    (21.65, -43.397, 0),
    (14.98, -38.288, 0),
    (9.566, -33.304, 0),
    (0, -33, 0),
    (19.25, 0, 3),
    (-9.566, -33.304, 0),
    (-14.98, -38.288, 0),
    (-21.65, -43.397, 0),
    (-32.54, -32.117, 0),
    (-41.448, -18.429, 0),
    (-32.988, -16.467, 0),
    (-26.461, -16.239, 0),
    (-22.808, -12.909, 0),
    (-19.478, -9.256, 0),
    (19.478, 9.256, 3),
    (22.808, 12.909, 3),
    (26.461, 16.239, 3),
    (32.988, 16.467, 3),
    (41.448, 18.429, 3),
    (32.54, 32.117, 3),
    (21.65, 43.397, 3),
    (14.98, 38.288, 3),
    (9.566, 33.304, 3),
    (0, 33, 3),
    (-9.566, 33.304, 3),
    (-14.98, 38.288, 3),
    (-21.65, 43.397, 3),
    (-32.54, 32.117, 3),
    (-41.448, 18.429, 3),
    (-32.988, 16.467, 3),
    (-26.461, 16.239, 3),
    (-22.808, 12.909, 3),
    (-19.478, 9.256, 3),
    (-19.25, 0, 3),
    (-19.478, -9.256, 3),
    (-22.808, -12.909, 3),
    (-26.461, -16.239, 3),
    (-32.988, -16.467, 3),
    (-41.448, -18.429, 3),
    (-32.54, -32.117, 3),
    (-21.65, -43.397, 3),
    (-14.98, -38.288, 3),
    (-9.566, -33.304, 3),
    (0, -33, 3),
    (9.566, -33.304, 3),
    (14.98, -38.288, 3),
    (21.65, -43.397, 3),
]))
chamfer.setExpression("Size", "Params.chamfer_size")

# Sketch on XY plane
sketch2 = body.newObject("Sketcher::SketchObject", "Sketch001")
sketch2.AttachmentSupport = (doc.getObject("XY_Plane"), [""])
sketch2.MapMode = "FlatFace"
sketch2.AttachmentOffset = App.Placement(Vector(0, 0, 3), App.Rotation())
sketch2.addGeometry(Part.Circle(Vector(-2.1, 10.7, 0), Vector(0, 0, 1), 2.2), False)
sketch2.addGeometry(Part.Circle(Vector(10.7, 2.1, 0), Vector(0, 0, 1), 2.2), False)
sketch2.addGeometry(Part.Circle(Vector(2.1, -10.7, 0), Vector(0, 0, 1), 2.2), False)
sketch2.addGeometry(Part.Circle(Vector(-10.7, -2.1, 0), Vector(0, 0, 1), 2.2), False)
sketch2.addGeometry(Part.Circle(Vector(18.8, 18.8, 0), Vector(0, 0, 1), 2.2), False)
sketch2.addGeometry(Part.Circle(Vector(29.9, 29.9, 0), Vector(0, 0, 1), 2.2), False)
sketch2.addGeometry(Part.Circle(Vector(-29.9, 29.9, 0), Vector(0, 0, 1), 2.2), False)
sketch2.addGeometry(Part.Circle(Vector(-18.8, 18.8, 0), Vector(0, 0, 1), 2.2), False)
sketch2.addGeometry(Part.Circle(Vector(-18.8, -18.8, 0), Vector(0, 0, 1), 2.2), False)
sketch2.addGeometry(Part.Circle(Vector(-29.9, -29.9, 0), Vector(0, 0, 1), 2.2), False)
sketch2.addGeometry(Part.Circle(Vector(18.8, -18.8, 0), Vector(0, 0, 1), 2.2), False)
sketch2.addGeometry(Part.Circle(Vector(29.9, -29.9, 0), Vector(0, 0, 1), 2.2), False)
sketch2.addConstraint(Sketcher.Constraint("Equal", 0, 1))
sketch2.addConstraint(Sketcher.Constraint("Equal", 1, 2))
sketch2.addConstraint(Sketcher.Constraint("Equal", 2, 3))
sketch2.addConstraint(Sketcher.Constraint("Equal", 3, 4))
sketch2.addConstraint(Sketcher.Constraint("Equal", 4, 5))
sketch2.addConstraint(Sketcher.Constraint("Equal", 5, 6))
sketch2.addConstraint(Sketcher.Constraint("Equal", 6, 7))
sketch2.addConstraint(Sketcher.Constraint("Equal", 7, 8))
sketch2.addConstraint(Sketcher.Constraint("Equal", 8, 9))
sketch2.addConstraint(Sketcher.Constraint("Equal", 9, 10))
sketch2.addConstraint(Sketcher.Constraint("Equal", 10, 11))
sketch2.addConstraint(Sketcher.Constraint("Symmetric", 0, 3, 2, 3, -1, 1))
sketch2.addConstraint(Sketcher.Constraint("Symmetric", 1, 3, 3, 3, -1, 1))
sketch2.addConstraint(Sketcher.Constraint("Symmetric", 4, 3, 8, 3, -1, 1))
sketch2.addConstraint(Sketcher.Constraint("Symmetric", 5, 3, 9, 3, -1, 1))
sketch2.addConstraint(Sketcher.Constraint("Symmetric", 7, 3, 10, 3, -1, 1))
sketch2.addConstraint(Sketcher.Constraint("Symmetric", 6, 3, 11, 3, -1, 1))
sketch2.addConstraint(Sketcher.Constraint("Symmetric", 5, 3, 6, 3, -2))
sketch2.addConstraint(Sketcher.Constraint("Symmetric", 4, 3, 7, 3, -2))
sketch2.addConstraint(Sketcher.Constraint("Diameter", 0, Q("4.5 mm")))
sketch2.addConstraint(Sketcher.Constraint("DistanceX", 0, 3, -1, 1, Q("2.12132 mm")))
sketch2.addConstraint(Sketcher.Constraint("DistanceY", -1, 1, 1, 3, Q("2.12132 mm")))
sketch2.addConstraint(Sketcher.Constraint("DistanceY", 2, 3, 4, 3, Q("29.545942 mm")))
sketch2.addConstraint(Sketcher.Constraint("DistanceX", 3, 3, 4, 3, Q("29.545942 mm")))
sketch2.addConstraint(Sketcher.Constraint("DistanceY", 2, 3, 5, 3, Q("40.640779 mm")))
sketch2.addConstraint(Sketcher.Constraint("DistanceX", 3, 3, 5, 3, Q("40.640779 mm")))
sketch2.addConstraint(Sketcher.Constraint("DistanceY", 8, 3, 7, 3, Q("37.67767 mm")))
sketch2.addConstraint(Sketcher.Constraint("DistanceX", -1, 1, 1, 3, Q("10.707107 mm")))
sketch2.setExpression("Constraints[19]", "Params.sketch2_diameter")
pocket1 = body.newObject("PartDesign::Pocket", "Pocket")
pocket1.Profile = sketch2
pocket1.setExpression("Length", "Params.pocket1_length")

# Sketch on XY plane
sketch3 = body.newObject("Sketcher::SketchObject", "Sketch002")
sketch3.AttachmentSupport = (doc.getObject("XY_Plane"), [""])
sketch3.MapMode = "FlatFace"
sketch3.AttachmentOffset = App.Placement(Vector(0, 0, 3), App.Rotation())
sketch3.addGeometry(Part.Circle(Vector(-2.1, 10.7, 0), Vector(0, 0, 1), 2.8), False)
sketch3.addGeometry(Part.Circle(Vector(10.7, 2.1, 0), Vector(0, 0, 1), 2.8), False)
sketch3.addGeometry(Part.Circle(Vector(-10.7, -2.1, 0), Vector(0, 0, 1), 2.8), False)
sketch3.addGeometry(Part.Circle(Vector(2.1, -10.7, 0), Vector(0, 0, 1), 2.8), False)
sketch3.addConstraint(Sketcher.Constraint("Equal", 0, 1))
sketch3.addConstraint(Sketcher.Constraint("Equal", 1, 2))
sketch3.addConstraint(Sketcher.Constraint("Equal", 2, 3))
sketch3.addConstraint(Sketcher.Constraint("Symmetric", 1, 3, 2, 3, -1, 1))
sketch3.addConstraint(Sketcher.Constraint("Symmetric", 0, 3, 3, 3, -1, 1))
sketch3.addConstraint(Sketcher.Constraint("Diameter", 0, Q("5.6 mm")))
sketch3.addConstraint(Sketcher.Constraint("DistanceX", 0, 3, -1, 1, Q("2.12132 mm")))
sketch3.addConstraint(Sketcher.Constraint("DistanceY", -1, 1, 1, 3, Q("2.12132 mm")))
sketch3.addConstraint(Sketcher.Constraint("DistanceY", -1, 1, 0, 3, Q("10.707107 mm")))
sketch3.addConstraint(Sketcher.Constraint("DistanceX", -1, 1, 1, 3, Q("10.707107 mm")))
sketch3.setExpression("Constraints[5]", "Params.sketch3_diameter")
pocket2 = body.newObject("PartDesign::Pocket", "Pocket001")
pocket2.Profile = sketch3
pocket2.setExpression("Length", "Params.pocket2_length")

doc.recompute()
